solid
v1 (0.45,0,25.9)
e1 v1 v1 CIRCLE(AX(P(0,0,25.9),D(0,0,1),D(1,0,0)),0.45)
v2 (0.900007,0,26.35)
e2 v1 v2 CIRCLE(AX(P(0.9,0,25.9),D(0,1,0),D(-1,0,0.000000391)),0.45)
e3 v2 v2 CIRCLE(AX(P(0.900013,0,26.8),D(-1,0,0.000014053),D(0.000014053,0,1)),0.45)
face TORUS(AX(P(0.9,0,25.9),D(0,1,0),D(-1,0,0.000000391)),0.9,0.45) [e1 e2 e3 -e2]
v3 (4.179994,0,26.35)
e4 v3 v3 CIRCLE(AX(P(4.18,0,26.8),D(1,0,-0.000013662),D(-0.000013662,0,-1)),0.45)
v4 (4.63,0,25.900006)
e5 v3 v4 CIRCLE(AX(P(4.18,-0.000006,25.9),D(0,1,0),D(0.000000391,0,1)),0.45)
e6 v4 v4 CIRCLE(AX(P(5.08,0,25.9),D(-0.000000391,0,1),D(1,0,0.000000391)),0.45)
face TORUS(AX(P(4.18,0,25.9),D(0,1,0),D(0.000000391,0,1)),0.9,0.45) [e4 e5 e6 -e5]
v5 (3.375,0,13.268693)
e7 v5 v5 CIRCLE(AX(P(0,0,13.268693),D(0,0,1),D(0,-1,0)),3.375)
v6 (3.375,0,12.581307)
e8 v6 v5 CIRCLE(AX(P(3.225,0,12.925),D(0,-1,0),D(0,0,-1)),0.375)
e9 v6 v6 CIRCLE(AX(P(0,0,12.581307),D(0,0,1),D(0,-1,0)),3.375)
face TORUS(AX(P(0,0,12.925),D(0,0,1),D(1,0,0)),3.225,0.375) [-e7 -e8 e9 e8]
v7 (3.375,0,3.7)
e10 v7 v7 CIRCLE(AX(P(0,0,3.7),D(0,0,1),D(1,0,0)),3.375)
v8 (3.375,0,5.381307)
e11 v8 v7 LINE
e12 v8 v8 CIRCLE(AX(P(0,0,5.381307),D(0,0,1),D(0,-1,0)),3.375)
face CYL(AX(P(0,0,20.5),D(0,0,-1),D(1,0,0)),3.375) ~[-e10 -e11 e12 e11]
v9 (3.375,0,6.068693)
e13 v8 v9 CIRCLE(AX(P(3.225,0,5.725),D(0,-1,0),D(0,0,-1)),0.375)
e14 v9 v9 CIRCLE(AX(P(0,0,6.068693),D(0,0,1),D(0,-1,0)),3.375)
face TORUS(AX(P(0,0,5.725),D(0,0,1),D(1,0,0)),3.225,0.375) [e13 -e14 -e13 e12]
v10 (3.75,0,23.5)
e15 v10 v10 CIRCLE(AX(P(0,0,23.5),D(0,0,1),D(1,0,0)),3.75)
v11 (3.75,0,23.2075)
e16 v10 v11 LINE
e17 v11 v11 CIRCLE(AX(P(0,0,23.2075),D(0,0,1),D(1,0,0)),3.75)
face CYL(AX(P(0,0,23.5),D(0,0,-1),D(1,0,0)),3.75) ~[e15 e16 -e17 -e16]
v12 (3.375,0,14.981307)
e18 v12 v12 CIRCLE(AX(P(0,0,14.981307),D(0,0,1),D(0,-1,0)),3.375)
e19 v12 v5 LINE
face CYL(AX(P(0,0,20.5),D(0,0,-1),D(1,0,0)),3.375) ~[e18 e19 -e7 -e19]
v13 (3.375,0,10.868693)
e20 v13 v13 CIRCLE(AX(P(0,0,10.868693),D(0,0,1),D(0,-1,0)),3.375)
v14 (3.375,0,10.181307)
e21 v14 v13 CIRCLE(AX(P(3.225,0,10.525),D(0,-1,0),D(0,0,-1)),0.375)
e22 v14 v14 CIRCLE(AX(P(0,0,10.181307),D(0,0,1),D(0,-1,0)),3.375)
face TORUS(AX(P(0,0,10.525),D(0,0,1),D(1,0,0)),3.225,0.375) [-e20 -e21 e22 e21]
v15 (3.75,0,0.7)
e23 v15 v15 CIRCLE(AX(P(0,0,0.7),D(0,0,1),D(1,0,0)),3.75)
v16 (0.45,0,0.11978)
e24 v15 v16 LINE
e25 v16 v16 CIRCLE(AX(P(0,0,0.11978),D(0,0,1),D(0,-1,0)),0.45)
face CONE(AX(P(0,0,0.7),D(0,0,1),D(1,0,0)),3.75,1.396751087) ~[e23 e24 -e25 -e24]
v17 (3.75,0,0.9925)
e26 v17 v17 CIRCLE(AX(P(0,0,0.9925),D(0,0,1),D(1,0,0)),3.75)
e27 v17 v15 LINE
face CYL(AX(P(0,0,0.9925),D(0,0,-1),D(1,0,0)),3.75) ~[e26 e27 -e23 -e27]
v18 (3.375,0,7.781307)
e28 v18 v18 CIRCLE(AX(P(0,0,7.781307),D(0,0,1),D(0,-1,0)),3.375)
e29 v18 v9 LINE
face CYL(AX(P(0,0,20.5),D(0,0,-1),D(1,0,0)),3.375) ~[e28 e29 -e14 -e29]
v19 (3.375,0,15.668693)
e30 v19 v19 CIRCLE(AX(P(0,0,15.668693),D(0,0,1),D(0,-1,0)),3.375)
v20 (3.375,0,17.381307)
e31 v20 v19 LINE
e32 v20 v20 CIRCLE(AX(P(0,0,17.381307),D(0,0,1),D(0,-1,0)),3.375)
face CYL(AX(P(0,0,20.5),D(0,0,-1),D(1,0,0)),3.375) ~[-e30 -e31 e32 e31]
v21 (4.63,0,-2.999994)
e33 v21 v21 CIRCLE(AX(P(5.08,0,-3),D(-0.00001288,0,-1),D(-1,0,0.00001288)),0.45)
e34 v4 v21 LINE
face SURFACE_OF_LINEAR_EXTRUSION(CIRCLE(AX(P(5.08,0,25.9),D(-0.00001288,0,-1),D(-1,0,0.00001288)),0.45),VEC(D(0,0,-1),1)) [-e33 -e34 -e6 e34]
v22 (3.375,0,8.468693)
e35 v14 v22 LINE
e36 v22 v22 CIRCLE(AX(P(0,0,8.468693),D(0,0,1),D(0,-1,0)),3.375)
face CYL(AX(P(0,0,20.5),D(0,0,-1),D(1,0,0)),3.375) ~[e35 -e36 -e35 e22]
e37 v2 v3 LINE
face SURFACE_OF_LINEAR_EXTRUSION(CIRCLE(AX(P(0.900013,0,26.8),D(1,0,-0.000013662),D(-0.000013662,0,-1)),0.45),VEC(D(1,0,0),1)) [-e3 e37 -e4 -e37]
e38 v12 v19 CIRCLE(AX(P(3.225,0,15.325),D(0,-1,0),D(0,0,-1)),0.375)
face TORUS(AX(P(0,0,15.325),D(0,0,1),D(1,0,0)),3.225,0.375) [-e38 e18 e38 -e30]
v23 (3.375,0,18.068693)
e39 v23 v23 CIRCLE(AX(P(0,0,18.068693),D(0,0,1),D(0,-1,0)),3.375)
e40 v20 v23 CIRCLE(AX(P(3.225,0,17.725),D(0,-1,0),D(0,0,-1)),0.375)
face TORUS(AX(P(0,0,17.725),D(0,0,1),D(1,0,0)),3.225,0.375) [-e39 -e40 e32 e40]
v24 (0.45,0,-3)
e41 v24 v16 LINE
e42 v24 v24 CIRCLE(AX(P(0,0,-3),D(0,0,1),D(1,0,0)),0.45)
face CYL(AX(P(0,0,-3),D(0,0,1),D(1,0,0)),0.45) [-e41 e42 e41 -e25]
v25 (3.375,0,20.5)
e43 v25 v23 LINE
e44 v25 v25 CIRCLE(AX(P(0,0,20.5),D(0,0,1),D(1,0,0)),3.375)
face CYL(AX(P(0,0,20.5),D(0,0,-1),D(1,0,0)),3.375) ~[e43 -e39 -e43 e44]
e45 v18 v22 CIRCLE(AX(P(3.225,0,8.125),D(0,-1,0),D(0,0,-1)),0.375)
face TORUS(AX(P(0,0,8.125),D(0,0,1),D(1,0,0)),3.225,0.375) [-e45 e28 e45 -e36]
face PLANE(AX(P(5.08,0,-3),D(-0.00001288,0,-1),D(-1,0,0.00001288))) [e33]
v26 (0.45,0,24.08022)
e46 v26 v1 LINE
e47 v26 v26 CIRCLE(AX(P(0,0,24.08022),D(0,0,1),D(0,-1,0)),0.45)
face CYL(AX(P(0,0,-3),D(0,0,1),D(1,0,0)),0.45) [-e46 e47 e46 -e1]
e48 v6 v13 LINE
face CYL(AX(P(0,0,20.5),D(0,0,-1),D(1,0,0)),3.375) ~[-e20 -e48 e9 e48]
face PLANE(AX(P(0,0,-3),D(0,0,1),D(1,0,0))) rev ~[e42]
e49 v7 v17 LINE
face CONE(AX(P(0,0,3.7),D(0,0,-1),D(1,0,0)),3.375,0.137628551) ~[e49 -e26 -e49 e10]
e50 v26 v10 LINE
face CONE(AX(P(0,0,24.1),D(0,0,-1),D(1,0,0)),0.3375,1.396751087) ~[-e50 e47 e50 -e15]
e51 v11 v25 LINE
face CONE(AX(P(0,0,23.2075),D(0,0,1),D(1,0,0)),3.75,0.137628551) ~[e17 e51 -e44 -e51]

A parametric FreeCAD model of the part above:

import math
import FreeCAD as App
import Part
import Sketcher

V = App.Vector
Q = App.Units.Quantity

doc = App.newDocument("Part")
params = doc.addObject("Spreadsheet::Sheet", "Params")
for row, (alias, value) in enumerate([
    ("sketch1_height", "24 mm"),
    ("sketch1_height2", "16.8 mm"),
    ("revolution_angle", "360 deg"),
    ("sketch2_diameter", "0.9 mm"),
    ("sketch3_radius", "0.9 mm"),
    ("sketch3_height", "28.9 mm"),
    ("revolution2_angle", "360 deg"),
], start=1):
    params.set(f"A{row}", alias)
    params.set(f"B{row}", "=" + value)
    params.setAlias(f"B{row}", alias)

body = doc.addObject("PartDesign::Body", "Body")

# Sketch on XZ plane
sketch1 = body.newObject("Sketcher::SketchObject", "Sketch")
sketch1.AttachmentSupport = (doc.getObject("XZ_Plane"), [""])
sketch1.MapMode = "FlatFace"
sketch1.addGeometry(Part.LineSegment(V(0, 24.1, 0), V(0, 0.1, 0)), False)
sketch1.addGeometry(Part.LineSegment(V(0, 0.1, 0), V(0.34, 0.1, 0)), False)
sketch1.addGeometry(Part.LineSegment(V(0.34, 0.1, 0), V(3.75, 0.7, 0)), False)
sketch1.addGeometry(Part.LineSegment(V(3.75, 0.7, 0), V(3.75, 0.99, 0)), False)
sketch1.addGeometry(Part.LineSegment(V(3.75, 0.99, 0), V(3.38, 3.7, 0)), False)
sketch1.addGeometry(Part.LineSegment(V(3.38, 3.7, 0), V(3.38, 20.5, 0)), False)
sketch1.addGeometry(Part.LineSegment(V(3.38, 20.5, 0), V(3.75, 23.21, 0)), False)
sketch1.addGeometry(Part.LineSegment(V(3.75, 23.21, 0), V(3.75, 23.5, 0)), False)
sketch1.addGeometry(Part.LineSegment(V(3.75, 23.5, 0), V(0.34, 24.1, 0)), False)
sketch1.addGeometry(Part.LineSegment(V(0.34, 24.1, 0), V(0, 24.1, 0)), False)
sketch1.addConstraint(Sketcher.Constraint("Coincident", 0, 2, 1, 1))
sketch1.addConstraint(Sketcher.Constraint("Coincident", 1, 2, 2, 1))
sketch1.addConstraint(Sketcher.Constraint("Coincident", 2, 2, 3, 1))
sketch1.addConstraint(Sketcher.Constraint("Coincident", 3, 2, 4, 1))
sketch1.addConstraint(Sketcher.Constraint("Coincident", 4, 2, 5, 1))
sketch1.addConstraint(Sketcher.Constraint("Coincident", 5, 2, 6, 1))
sketch1.addConstraint(Sketcher.Constraint("Coincident", 6, 2, 7, 1))
sketch1.addConstraint(Sketcher.Constraint("Coincident", 7, 2, 8, 1))
sketch1.addConstraint(Sketcher.Constraint("Coincident", 8, 2, 9, 1))
sketch1.addConstraint(Sketcher.Constraint("Coincident", 9, 2, 0, 1))
sketch1.addConstraint(Sketcher.Constraint("Vertical", 0))
sketch1.addConstraint(Sketcher.Constraint("Horizontal", 1))
sketch1.addConstraint(Sketcher.Constraint("Vertical", 3))
sketch1.addConstraint(Sketcher.Constraint("Vertical", 5))
sketch1.addConstraint(Sketcher.Constraint("Vertical", 7))
sketch1.addConstraint(Sketcher.Constraint("Horizontal", 9))
sketch1.addConstraint(Sketcher.Constraint("PointOnObject", 0, 2, -2))
sketch1.addConstraint(Sketcher.Constraint("Vertical", 3, 2, 6, 2))
sketch1.addConstraint(Sketcher.Constraint("Vertical", 1, 2, 8, 2))
sketch1.addConstraint(Sketcher.Constraint("Equal", 3, 7))
sketch1.addConstraint(Sketcher.Constraint("Equal", 4, 6))
sketch1.addConstraint(Sketcher.Constraint("Equal", 2, 8))
sketch1.addConstraint(Sketcher.Constraint("DistanceY", 0, 2, 0, 1, Q("24 mm")))
sketch1.addConstraint(Sketcher.Constraint("DistanceY", 5, 1, 5, 2, Q("16.8 mm")))
sketch1.addConstraint(Sketcher.Constraint("DistanceY", 2, 2, 4, 2, Q("3 mm")))
sketch1.addConstraint(Sketcher.Constraint("DistanceY", -1, 1, 0, 2, Q("0.1 mm")))
sketch1.addConstraint(Sketcher.Constraint("DistanceX", -1, 1, 2, 2, Q("3.75 mm")))
sketch1.addConstraint(Sketcher.Constraint("DistanceX", 1, 1, 1, 2, Q("0.3375 mm")))
sketch1.addConstraint(Sketcher.Constraint("DistanceY", 3, 1, 3, 2, Q("0.2925 mm")))
sketch1.addConstraint(Sketcher.Constraint("DistanceX", -1, 1, 4, 2, Q("3.375 mm")))
sketch1.setExpression("Constraints[22]", "Params.sketch1_height")
sketch1.setExpression("Constraints[23]", "Params.sketch1_height2")
revolution = body.newObject("PartDesign::Revolution", "Revolution")
revolution.Profile = sketch1
revolution.ReferenceAxis = (sketch1, ["V_Axis"])
revolution.setExpression("Angle", "Params.revolution_angle")
body2 = doc.addObject("PartDesign::Body", "Body001")

# Sketch on XY plane
sketch2 = body2.newObject("Sketcher::SketchObject", "Sketch001")
sketch2.AttachmentSupport = (doc.getObject("XY_Plane001"), [""])
sketch2.MapMode = "FlatFace"
sketch2.AttachmentOffset = App.Placement(V(0, 0, -2), App.Rotation())
sketch2.addGeometry(Part.Circle(V(0, 0, 0), V(0, 0, 1), 0.45), False)
sketch2.addConstraint(Sketcher.Constraint("Coincident", 0, 3, -1, 1))
sketch2.addConstraint(Sketcher.Constraint("Diameter", 0, Q("0.9 mm")))
sketch2.setExpression("Constraints[1]", "Params.sketch2_diameter")

# Sketch on XZ plane
sketch3 = body2.newObject("Sketcher::SketchObject", "Sketch002")
sketch3.AttachmentSupport = (doc.getObject("XZ_Plane001"), [""])
sketch3.MapMode = "FlatFace"
sketch3.addGeometry(Part.LineSegment(V(0, -3, 0), V(0, 25.9, 0)), False)
sketch3.addGeometry(Part.ArcOfCircle(Part.Circle(V(0.9, 25.9, 0), V(0, 0, 1), 0.9), math.radians(90), math.radians(180)), False)
sketch3.addGeometry(Part.LineSegment(V(0.9, 26.8, 0), V(4.2, 26.8, 0)), False)
sketch3.addGeometry(Part.ArcOfCircle(Part.Circle(V(4.2, 25.9, 0), V(0, 0, 1), 0.9), math.radians(0), math.radians(90)), False)
sketch3.addGeometry(Part.LineSegment(V(5.1, 25.9, 0), V(5.1, -3, 0)), False)
sketch3.addConstraint(Sketcher.Constraint("Tangent", 0, 2, 1, 2))
sketch3.addConstraint(Sketcher.Constraint("Coincident", 1, 1, 2, 1))
sketch3.addConstraint(Sketcher.Constraint("Tangent", 2, 2, 3, 2))
sketch3.addConstraint(Sketcher.Constraint("Tangent", 3, 1, 4, 1))
sketch3.addConstraint(Sketcher.Constraint("Vertical", 0))
sketch3.addConstraint(Sketcher.Constraint("Horizontal", 2))
sketch3.addConstraint(Sketcher.Constraint("Vertical", 4))
sketch3.addConstraint(Sketcher.Constraint("Equal", 1, 3))
sketch3.addConstraint(Sketcher.Constraint("PointOnObject", 0, 1, -2))
sketch3.addConstraint(Sketcher.Constraint("Horizontal", 0, 1, 4, 2))
sketch3.addConstraint(Sketcher.Constraint("Radius", 1, Q("0.9 mm")))
sketch3.addConstraint(Sketcher.Constraint("DistanceY", 0, 1, 0, 2, Q("28.9 mm")))
sketch3.addConstraint(Sketcher.Constraint("DistanceY", 0, 1, -1, 1, Q("3 mm")))
sketch3.addConstraint(Sketcher.Constraint("DistanceX", -1, 1, 3, 3, Q("4.18 mm")))
sketch3.addConstraint(Sketcher.Constraint("DistanceX", 2, 1, 2, 2, Q("3.279987 mm")))
sketch3.setExpression("Constraints[10]", "Params.sketch3_radius")
sketch3.setExpression("Constraints[11]", "Params.sketch3_height")
doc.recompute()

additivepipe = body2.newObject("PartDesign::AdditivePipe", "AdditivePipe")
additivepipe.Profile = sketch2
additivepipe.Spine = (sketch3, ["Edge1", "Edge2", "Edge3", "Edge4", "Edge5"])
body3 = doc.addObject("PartDesign::Body", "Body002")

# Sketch on XZ plane
sketch4 = body3.newObject("Sketcher::SketchObject", "Sketch003")
sketch4.AttachmentSupport = (doc.getObject("XZ_Plane002"), [""])
sketch4.MapMode = "FlatFace"
sketch4.addGeometry(Part.LineSegment(V(3, 19.75, 0), V(3, 3.7, 0)), False)
sketch4.addGeometry(Part.LineSegment(V(3, 3.7, 0), V(3.23, 3.7, 0)), False)
sketch4.addGeometry(Part.LineSegment(V(3.23, 3.7, 0), V(3.23, 5.35, 0)), False)
sketch4.addGeometry(Part.ArcOfCircle(Part.Circle(V(3.23, 5.72, 0), V(0, 0, 1), 0.38), math.radians(-90), math.radians(90)), False)
sketch4.addGeometry(Part.LineSegment(V(3.23, 6.1, 0), V(3.23, 7.75, 0)), False)
sketch4.addGeometry(Part.ArcOfCircle(Part.Circle(V(3.23, 8.12, 0), V(0, 0, 1), 0.38), math.radians(-90), math.radians(90)), False)
sketch4.addGeometry(Part.LineSegment(V(3.23, 8.5, 0), V(3.23, 10.15, 0)), False)
sketch4.addGeometry(Part.ArcOfCircle(Part.Circle(V(3.23, 10.53, 0), V(0, 0, 1), 0.38), math.radians(-90), math.radians(90)), False)
sketch4.addGeometry(Part.LineSegment(V(3.23, 10.9, 0), V(3.23, 12.55, 0)), False)
sketch4.addGeometry(Part.ArcOfCircle(Part.Circle(V(3.23, 12.93, 0), V(0, 0, 1), 0.38), math.radians(-90), math.radians(90)), False)
sketch4.addGeometry(Part.LineSegment(V(3.23, 13.3, 0), V(3.23, 14.95, 0)), False)
sketch4.addGeometry(Part.ArcOfCircle(Part.Circle(V(3.23, 15.32, 0), V(0, 0, 1), 0.38), math.radians(-90), math.radians(90)), False)
sketch4.addGeometry(Part.LineSegment(V(3.23, 15.7, 0), V(3.23, 17.35, 0)), False)
sketch4.addGeometry(Part.ArcOfCircle(Part.Circle(V(3.23, 17.73, 0), V(0, 0, 1), 0.38), math.radians(-90), math.radians(90)), False)
sketch4.addGeometry(Part.LineSegment(V(3.23, 18.1, 0), V(3.23, 19.75, 0)), False)
sketch4.addGeometry(Part.LineSegment(V(3.23, 19.75, 0), V(3, 19.75, 0)), False)
sketch4.addConstraint(Sketcher.Constraint("Coincident", 0, 2, 1, 1))
sketch4.addConstraint(Sketcher.Constraint("Coincident", 1, 2, 2, 1))
sketch4.addConstraint(Sketcher.Constraint("Coincident", 2, 2, 3, 1))
sketch4.addConstraint(Sketcher.Constraint("Coincident", 3, 2, 4, 1))
sketch4.addConstraint(Sketcher.Constraint("Coincident", 4, 2, 5, 1))
sketch4.addConstraint(Sketcher.Constraint("Coincident", 5, 2, 6, 1))
sketch4.addConstraint(Sketcher.Constraint("Coincident", 6, 2, 7, 1))
sketch4.addConstraint(Sketcher.Constraint("Coincident", 7, 2, 8, 1))
sketch4.addConstraint(Sketcher.Constraint("Coincident", 8, 2, 9, 1))
sketch4.addConstraint(Sketcher.Constraint("Coincident", 9, 2, 10, 1))
sketch4.addConstraint(Sketcher.Constraint("Coincident", 10, 2, 11, 1))
sketch4.addConstraint(Sketcher.Constraint("Coincident", 11, 2, 12, 1))
sketch4.addConstraint(Sketcher.Constraint("Coincident", 12, 2, 13, 1))
sketch4.addConstraint(Sketcher.Constraint("Coincident", 13, 2, 14, 1))
sketch4.addConstraint(Sketcher.Constraint("Coincident", 14, 2, 15, 1))
sketch4.addConstraint(Sketcher.Constraint("Coincident", 15, 2, 0, 1))
sketch4.addConstraint(Sketcher.Constraint("Vertical", 0))
sketch4.addConstraint(Sketcher.Constraint("Horizontal", 1))
sketch4.addConstraint(Sketcher.Constraint("Vertical", 2))
sketch4.addConstraint(Sketcher.Constraint("Vertical", 4))
sketch4.addConstraint(Sketcher.Constraint("Vertical", 6))
sketch4.addConstraint(Sketcher.Constraint("Vertical", 8))
sketch4.addConstraint(Sketcher.Constraint("Vertical", 10))
sketch4.addConstraint(Sketcher.Constraint("Vertical", 12))
sketch4.addConstraint(Sketcher.Constraint("Vertical", 14))
sketch4.addConstraint(Sketcher.Constraint("Horizontal", 15))
sketch4.addConstraint(Sketcher.Constraint("Equal", 3, 5))
sketch4.addConstraint(Sketcher.Constraint("Equal", 5, 7))
sketch4.addConstraint(Sketcher.Constraint("Equal", 7, 9))
sketch4.addConstraint(Sketcher.Constraint("Equal", 9, 11))
sketch4.addConstraint(Sketcher.Constraint("Equal", 11, 13))
sketch4.addConstraint(Sketcher.Constraint("Vertical", 3, 3, 5, 3))
sketch4.addConstraint(Sketcher.Constraint("Vertical", 5, 3, 7, 3))
sketch4.addConstraint(Sketcher.Constraint("Vertical", 7, 3, 9, 3))
sketch4.addConstraint(Sketcher.Constraint("Vertical", 9, 3, 11, 3))
sketch4.addConstraint(Sketcher.Constraint("Vertical", 11, 3, 13, 3))
sketch4.addConstraint(Sketcher.Constraint("Vertical", 13, 3, 1, 2))
sketch4.addConstraint(Sketcher.Constraint("Vertical", 2, 2, 3, 2))
sketch4.addConstraint(Sketcher.Constraint("Vertical", 4, 2, 5, 2))
sketch4.addConstraint(Sketcher.Constraint("Vertical", 6, 2, 7, 2))
sketch4.addConstraint(Sketcher.Constraint("Vertical", 8, 2, 9, 2))
sketch4.addConstraint(Sketcher.Constraint("Vertical", 10, 2, 11, 2))
sketch4.addConstraint(Sketcher.Constraint("Vertical", 12, 2, 13, 2))
sketch4.addConstraint(Sketcher.Constraint("Equal", 2, 4))
sketch4.addConstraint(Sketcher.Constraint("Equal", 4, 6))
sketch4.addConstraint(Sketcher.Constraint("Equal", 6, 8))
sketch4.addConstraint(Sketcher.Constraint("Equal", 8, 10))
sketch4.addConstraint(Sketcher.Constraint("Equal", 10, 12))
sketch4.addConstraint(Sketcher.Constraint("Equal", 12, 14))
sketch4.addConstraint(Sketcher.Constraint("DistanceX", -1, 1, 0, 2, Q("3 mm")))
sketch4.addConstraint(Sketcher.Constraint("Radius", 3, Q("0.375 mm")))
sketch4.addConstraint(Sketcher.Constraint("DistanceY", 3, 3, 13, 3, Q("12 mm")))
sketch4.addConstraint(Sketcher.Constraint("DistanceY", -1, 1, 0, 2, Q("3.7 mm")))
sketch4.addConstraint(Sketcher.Constraint("DistanceX", 1, 1, 1, 2, Q("0.225 mm")))
revolution2 = body3.newObject("PartDesign::Revolution", "Revolution001")
revolution2.Profile = sketch4
revolution2.ReferenceAxis = (sketch4, ["V_Axis"])
revolution2.setExpression("Angle", "Params.revolution2_angle")
doc.recompute()

boolean = body3.newObject("PartDesign::Boolean", "Boolean")
boolean.Type = "Fuse"
boolean.addObjects([body])
doc.recompute()

boolean2 = body3.newObject("PartDesign::Boolean", "Boolean001")
boolean2.Type = "Fuse"
boolean2.addObjects([body2])

doc.recompute()
